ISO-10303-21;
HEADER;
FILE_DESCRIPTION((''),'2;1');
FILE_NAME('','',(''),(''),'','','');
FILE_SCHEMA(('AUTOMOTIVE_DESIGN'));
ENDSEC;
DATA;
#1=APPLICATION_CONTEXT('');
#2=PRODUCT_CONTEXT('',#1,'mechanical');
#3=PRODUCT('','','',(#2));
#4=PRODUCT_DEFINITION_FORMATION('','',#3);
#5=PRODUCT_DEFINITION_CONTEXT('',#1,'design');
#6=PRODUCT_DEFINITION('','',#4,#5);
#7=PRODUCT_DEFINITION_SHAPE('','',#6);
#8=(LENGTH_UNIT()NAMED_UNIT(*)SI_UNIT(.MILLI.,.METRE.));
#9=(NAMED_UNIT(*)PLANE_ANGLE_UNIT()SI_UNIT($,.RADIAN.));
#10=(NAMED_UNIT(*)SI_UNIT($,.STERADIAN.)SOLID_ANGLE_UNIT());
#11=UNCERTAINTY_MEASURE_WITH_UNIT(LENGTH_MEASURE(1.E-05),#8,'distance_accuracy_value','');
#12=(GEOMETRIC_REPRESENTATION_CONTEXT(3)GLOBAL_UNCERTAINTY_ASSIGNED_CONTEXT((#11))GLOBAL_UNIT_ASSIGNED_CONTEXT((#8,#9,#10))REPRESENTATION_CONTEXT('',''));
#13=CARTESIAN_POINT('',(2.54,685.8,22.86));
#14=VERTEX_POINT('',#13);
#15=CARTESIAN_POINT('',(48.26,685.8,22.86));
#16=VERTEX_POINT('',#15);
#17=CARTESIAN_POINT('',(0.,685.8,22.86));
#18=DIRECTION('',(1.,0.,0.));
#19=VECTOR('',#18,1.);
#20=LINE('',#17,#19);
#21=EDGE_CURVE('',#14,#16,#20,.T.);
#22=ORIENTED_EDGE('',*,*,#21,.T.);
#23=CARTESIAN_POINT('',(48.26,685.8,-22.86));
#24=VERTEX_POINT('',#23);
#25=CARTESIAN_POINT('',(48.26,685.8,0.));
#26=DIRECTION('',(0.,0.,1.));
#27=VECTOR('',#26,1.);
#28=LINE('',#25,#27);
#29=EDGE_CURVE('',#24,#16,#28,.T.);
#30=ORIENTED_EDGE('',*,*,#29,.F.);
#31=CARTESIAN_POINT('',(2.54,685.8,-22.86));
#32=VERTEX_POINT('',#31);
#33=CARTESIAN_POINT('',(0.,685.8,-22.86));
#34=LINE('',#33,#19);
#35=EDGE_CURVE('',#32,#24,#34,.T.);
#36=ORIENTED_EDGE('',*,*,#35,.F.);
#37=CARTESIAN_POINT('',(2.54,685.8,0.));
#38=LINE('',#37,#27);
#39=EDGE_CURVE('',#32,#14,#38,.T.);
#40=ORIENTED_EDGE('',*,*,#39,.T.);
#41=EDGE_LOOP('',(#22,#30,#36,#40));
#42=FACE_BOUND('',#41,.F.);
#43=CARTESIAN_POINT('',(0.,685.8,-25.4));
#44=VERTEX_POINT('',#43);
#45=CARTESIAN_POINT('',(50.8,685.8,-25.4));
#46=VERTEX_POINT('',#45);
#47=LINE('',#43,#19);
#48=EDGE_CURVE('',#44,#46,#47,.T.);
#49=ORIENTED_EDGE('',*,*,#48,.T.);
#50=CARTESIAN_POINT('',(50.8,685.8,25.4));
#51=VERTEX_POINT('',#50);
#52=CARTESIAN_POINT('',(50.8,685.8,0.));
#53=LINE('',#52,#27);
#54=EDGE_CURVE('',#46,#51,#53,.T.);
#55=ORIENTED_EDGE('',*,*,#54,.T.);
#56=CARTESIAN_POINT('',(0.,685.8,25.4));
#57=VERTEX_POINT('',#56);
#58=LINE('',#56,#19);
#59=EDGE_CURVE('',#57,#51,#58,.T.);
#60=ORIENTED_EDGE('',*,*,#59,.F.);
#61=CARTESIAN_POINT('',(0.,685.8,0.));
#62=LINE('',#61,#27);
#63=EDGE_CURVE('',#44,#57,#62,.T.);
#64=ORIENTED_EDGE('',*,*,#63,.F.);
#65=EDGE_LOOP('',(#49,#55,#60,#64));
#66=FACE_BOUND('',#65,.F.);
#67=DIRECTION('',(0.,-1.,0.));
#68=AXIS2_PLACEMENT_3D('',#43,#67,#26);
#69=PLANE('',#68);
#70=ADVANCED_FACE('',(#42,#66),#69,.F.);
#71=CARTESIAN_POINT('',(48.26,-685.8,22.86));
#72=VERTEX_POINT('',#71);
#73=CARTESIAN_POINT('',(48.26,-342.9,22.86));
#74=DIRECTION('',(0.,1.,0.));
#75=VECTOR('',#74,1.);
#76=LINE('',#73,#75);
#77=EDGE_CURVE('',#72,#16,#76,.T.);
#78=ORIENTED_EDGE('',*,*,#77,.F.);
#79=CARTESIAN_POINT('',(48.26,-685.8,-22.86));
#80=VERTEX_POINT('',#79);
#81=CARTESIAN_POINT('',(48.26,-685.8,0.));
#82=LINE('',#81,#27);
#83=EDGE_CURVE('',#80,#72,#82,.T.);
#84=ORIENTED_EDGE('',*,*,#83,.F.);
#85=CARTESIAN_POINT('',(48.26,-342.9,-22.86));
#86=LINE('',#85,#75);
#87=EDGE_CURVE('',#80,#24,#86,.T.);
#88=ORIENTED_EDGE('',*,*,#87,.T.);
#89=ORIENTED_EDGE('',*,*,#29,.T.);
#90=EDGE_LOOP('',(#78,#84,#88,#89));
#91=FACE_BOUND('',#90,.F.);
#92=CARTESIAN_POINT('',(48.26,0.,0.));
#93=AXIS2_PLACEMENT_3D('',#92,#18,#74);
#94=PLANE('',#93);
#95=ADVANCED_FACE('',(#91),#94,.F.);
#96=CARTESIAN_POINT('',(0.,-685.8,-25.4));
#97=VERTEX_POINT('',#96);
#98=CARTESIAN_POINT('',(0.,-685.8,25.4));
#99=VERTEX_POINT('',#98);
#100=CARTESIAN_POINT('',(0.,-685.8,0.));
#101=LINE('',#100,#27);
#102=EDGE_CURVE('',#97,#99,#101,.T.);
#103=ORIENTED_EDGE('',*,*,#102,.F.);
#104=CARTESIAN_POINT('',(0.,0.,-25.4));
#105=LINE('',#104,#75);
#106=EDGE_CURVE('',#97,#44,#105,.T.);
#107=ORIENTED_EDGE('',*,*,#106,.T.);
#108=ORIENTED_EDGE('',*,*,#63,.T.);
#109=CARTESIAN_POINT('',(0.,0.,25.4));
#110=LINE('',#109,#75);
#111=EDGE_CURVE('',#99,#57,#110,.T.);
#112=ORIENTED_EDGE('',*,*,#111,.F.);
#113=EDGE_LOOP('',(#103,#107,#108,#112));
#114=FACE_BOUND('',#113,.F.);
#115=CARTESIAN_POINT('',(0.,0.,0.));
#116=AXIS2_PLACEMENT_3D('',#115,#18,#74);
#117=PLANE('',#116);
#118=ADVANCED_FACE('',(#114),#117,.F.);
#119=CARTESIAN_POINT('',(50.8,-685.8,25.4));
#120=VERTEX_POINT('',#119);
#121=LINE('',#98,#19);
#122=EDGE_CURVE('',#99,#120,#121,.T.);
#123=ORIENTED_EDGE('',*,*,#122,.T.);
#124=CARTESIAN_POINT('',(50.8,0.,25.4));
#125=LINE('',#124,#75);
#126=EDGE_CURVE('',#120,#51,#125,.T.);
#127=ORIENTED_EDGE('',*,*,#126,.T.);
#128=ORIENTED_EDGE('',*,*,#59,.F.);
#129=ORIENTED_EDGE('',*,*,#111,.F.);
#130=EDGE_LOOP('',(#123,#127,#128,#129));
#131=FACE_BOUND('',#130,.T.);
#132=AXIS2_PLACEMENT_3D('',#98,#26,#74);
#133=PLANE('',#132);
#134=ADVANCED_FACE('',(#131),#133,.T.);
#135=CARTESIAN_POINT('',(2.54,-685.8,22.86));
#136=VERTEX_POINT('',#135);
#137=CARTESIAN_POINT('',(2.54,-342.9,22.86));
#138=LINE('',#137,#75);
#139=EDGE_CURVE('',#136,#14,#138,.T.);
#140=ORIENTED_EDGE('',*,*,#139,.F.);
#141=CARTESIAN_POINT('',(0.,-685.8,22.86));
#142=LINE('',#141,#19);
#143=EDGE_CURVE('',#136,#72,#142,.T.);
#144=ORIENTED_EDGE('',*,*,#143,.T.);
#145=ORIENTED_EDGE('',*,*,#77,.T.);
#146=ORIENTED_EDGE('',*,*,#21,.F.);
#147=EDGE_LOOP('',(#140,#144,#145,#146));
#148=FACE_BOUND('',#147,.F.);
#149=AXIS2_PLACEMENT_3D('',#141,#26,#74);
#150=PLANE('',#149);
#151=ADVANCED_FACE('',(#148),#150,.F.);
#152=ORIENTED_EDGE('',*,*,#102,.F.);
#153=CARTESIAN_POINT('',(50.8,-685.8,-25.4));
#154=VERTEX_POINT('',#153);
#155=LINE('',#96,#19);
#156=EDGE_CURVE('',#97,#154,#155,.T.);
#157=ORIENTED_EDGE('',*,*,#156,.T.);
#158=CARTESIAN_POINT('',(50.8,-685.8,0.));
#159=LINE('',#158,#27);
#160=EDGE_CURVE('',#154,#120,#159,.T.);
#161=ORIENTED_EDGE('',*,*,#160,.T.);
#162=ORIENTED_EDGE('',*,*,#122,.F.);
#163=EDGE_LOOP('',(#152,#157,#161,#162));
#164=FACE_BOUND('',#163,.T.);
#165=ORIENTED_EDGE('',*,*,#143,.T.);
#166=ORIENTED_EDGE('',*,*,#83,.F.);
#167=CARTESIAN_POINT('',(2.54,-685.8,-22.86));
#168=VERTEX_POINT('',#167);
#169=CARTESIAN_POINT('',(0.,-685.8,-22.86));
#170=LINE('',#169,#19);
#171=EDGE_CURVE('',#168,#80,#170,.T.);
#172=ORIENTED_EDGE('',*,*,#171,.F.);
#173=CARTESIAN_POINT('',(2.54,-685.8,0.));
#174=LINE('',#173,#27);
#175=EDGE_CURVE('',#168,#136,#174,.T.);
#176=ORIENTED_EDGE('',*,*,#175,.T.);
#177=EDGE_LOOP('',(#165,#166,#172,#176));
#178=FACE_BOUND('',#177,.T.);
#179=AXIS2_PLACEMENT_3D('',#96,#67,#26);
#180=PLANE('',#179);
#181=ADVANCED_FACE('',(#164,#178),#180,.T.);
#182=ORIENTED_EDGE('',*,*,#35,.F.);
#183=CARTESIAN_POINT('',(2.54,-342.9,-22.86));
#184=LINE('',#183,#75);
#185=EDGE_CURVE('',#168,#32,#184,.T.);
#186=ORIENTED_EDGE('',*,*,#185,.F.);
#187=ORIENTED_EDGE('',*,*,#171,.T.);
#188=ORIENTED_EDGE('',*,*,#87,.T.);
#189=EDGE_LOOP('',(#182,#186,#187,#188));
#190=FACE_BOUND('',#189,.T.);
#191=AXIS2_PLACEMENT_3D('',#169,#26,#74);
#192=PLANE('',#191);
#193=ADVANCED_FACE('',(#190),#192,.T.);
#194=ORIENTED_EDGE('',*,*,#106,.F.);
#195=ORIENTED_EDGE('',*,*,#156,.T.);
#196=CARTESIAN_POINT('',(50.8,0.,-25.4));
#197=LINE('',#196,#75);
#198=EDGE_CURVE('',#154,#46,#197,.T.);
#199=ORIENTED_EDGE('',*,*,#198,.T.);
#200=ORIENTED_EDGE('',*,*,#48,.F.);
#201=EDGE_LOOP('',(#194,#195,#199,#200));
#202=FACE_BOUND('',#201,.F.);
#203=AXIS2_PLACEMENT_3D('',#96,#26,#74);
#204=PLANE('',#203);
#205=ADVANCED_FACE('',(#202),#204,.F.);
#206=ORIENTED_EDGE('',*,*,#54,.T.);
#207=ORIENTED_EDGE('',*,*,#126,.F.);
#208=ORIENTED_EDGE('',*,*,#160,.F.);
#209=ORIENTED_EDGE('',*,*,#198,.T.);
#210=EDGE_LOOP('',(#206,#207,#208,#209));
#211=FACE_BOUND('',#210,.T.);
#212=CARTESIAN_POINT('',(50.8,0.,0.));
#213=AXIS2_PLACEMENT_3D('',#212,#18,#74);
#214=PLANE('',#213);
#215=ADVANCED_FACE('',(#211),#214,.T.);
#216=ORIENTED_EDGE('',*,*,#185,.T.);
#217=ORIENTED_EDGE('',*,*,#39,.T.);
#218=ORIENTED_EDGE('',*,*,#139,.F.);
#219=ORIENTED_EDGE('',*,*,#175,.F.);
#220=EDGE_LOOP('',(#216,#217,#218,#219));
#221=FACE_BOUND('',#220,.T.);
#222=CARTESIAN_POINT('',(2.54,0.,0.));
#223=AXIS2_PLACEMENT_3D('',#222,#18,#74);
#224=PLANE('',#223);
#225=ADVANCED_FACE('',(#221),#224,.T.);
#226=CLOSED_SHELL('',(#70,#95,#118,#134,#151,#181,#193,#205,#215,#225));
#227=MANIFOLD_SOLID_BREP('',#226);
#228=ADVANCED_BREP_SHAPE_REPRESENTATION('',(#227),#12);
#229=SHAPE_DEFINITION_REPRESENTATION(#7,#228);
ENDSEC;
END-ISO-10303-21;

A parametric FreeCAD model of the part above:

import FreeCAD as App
import Part
import Sketcher
from FreeCAD import Vector
Q = App.Units.Quantity


def faces_at(feature, points):
    """Names of the faces that lie closest to the given points."""
    faces = feature.Shape.Faces
    near = lambda p: min(range(len(faces)), key=lambda i: faces[i].distToShape(Part.Vertex(*p))[0])
    return sorted({f"Face{near(p) + 1}" for p in points})


def add_polygon(sketch, points):
    """Adds a closed chain of lines whose ends are joined by coincident constraints."""
    first, n = sketch.GeometryCount, len(points)
    for a, b in zip(points, points[1:] + points[:1]):
        sketch.addGeometry(Part.LineSegment(App.Vector(*a, 0), App.Vector(*b, 0)), False)
    for i in range(n):
        sketch.addConstraint(Sketcher.Constraint("Coincident", first + i, 2, first + (i + 1) % n, 1))

doc = App.newDocument("Part")
body = doc.addObject("PartDesign::Body", "Body")

sketch1 = body.newObject("Sketcher::SketchObject", "Sketch")
sketch1.AttachmentSupport = (doc.getObject("YZ_Plane"), [""])
sketch1.MapMode = "FlatFace"
add_polygon(sketch1, [(-685.8, 25.4), (-685.8, -25.4), (685.8, -25.4), (685.8, 25.4)])
sketch1.addConstraint(Sketcher.Constraint("Vertical", 0))
sketch1.addConstraint(Sketcher.Constraint("Horizontal", 1))
sketch1.addConstraint(Sketcher.Constraint("Vertical", 2))
sketch1.addConstraint(Sketcher.Constraint("Horizontal", 3))
sketch1.addConstraint(Sketcher.Constraint("Symmetric", 0, 2, 2, 2, -1, 1))
sketch1.addConstraint(Sketcher.Constraint("DistanceX", 1, 1, 1, 2, Q("54 in")))
sketch1.addConstraint(Sketcher.Constraint("DistanceY", 0, 2, 0, 1, Q("2 in")))
pad1 = body.newObject("PartDesign::Pad", "Pad")
pad1.Profile = sketch1
pad1.Length = Q("2 in")
doc.recompute()

thickness = body.newObject("PartDesign::Thickness", "Thickness")
thickness.Base = (pad1, faces_at(pad1, [(25.4, -685.8, 0), (25.4, 685.8, 0)]))
thickness.Value = Q("0.1 in")
thickness.Reversed = True
thickness.Join = "Arc"

doc.recompute()
